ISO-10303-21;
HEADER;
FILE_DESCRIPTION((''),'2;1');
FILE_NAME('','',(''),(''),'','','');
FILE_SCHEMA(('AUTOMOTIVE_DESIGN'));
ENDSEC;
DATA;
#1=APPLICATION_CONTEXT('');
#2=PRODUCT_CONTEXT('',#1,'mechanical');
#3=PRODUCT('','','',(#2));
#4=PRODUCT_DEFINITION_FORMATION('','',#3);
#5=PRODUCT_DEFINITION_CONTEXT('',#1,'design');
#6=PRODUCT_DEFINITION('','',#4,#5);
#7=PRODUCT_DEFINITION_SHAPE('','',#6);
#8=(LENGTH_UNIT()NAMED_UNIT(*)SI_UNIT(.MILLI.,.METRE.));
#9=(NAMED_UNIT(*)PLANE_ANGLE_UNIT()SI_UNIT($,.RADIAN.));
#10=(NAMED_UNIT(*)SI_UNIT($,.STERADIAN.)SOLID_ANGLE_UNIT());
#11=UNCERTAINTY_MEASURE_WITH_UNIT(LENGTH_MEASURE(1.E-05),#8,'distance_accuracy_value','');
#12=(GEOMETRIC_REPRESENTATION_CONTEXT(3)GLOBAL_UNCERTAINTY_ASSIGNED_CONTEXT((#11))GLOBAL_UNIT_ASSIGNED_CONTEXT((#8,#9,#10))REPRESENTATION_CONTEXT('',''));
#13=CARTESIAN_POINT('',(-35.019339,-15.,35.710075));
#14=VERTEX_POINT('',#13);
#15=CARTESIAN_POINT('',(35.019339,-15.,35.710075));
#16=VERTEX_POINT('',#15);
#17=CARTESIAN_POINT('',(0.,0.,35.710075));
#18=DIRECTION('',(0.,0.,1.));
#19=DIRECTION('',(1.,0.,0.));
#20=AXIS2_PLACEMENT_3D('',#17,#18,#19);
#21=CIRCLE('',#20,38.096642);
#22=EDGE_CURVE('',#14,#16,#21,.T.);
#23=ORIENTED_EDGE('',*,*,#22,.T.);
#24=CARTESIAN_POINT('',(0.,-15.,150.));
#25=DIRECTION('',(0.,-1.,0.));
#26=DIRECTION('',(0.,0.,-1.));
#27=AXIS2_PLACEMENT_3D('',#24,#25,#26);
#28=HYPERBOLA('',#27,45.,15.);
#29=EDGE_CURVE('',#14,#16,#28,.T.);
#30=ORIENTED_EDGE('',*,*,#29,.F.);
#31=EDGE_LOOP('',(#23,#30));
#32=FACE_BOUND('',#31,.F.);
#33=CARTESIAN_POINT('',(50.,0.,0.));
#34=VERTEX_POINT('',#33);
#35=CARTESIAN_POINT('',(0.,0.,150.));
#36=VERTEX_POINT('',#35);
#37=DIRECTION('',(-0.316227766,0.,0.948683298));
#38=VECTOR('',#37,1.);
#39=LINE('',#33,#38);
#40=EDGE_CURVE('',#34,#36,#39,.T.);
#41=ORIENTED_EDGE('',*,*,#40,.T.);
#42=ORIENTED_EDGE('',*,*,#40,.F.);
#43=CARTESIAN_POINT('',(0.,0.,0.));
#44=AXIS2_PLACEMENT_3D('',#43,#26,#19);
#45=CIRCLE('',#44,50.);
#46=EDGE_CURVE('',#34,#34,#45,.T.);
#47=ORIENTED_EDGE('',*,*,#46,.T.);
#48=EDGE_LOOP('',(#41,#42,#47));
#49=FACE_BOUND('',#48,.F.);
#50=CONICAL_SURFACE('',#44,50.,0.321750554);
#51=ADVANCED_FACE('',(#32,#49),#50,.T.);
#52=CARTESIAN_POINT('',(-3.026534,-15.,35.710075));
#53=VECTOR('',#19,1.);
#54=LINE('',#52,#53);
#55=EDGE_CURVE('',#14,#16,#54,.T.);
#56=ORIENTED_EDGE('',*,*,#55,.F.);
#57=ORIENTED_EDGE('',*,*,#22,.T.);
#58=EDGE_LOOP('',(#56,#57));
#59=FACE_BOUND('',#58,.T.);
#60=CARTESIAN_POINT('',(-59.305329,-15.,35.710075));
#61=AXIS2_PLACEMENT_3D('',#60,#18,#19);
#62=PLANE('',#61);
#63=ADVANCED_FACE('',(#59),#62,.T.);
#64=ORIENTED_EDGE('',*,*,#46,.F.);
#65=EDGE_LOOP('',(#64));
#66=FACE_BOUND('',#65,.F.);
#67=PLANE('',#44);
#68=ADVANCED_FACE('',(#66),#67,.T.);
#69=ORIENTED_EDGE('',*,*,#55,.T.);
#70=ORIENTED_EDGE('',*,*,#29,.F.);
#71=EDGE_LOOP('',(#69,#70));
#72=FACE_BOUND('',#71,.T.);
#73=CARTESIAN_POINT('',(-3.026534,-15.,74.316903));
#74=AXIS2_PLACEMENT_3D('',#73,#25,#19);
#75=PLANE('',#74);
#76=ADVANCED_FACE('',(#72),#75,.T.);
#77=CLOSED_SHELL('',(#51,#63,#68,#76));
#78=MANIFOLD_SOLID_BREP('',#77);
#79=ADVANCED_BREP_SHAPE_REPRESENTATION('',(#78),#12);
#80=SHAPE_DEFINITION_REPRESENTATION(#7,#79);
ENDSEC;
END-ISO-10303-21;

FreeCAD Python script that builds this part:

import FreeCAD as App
import Part
import Sketcher

V = App.Vector


def add_polygon(sketch, points):
    """Adds a closed chain of lines whose ends are joined by coincident constraints."""
    first, n = sketch.GeometryCount, len(points)
    for a, b in zip(points, points[1:] + points[:1]):
        sketch.addGeometry(Part.LineSegment(App.Vector(*a, 0), App.Vector(*b, 0)), False)
    for i in range(n):
        sketch.addConstraint(Sketcher.Constraint("Coincident", first + i, 2, first + (i + 1) % n, 1))

doc = App.newDocument("Part")
body = doc.addObject("PartDesign::Body", "Body")

# Sketch on XZ plane
sketch1 = body.newObject("Sketcher::SketchObject", "Sketch")
sketch1.AttachmentSupport = (doc.getObject("XZ_Plane"), [""])
sketch1.MapMode = "FlatFace"
add_polygon(sketch1, [(50, 0), (0, 150), (0, 0)])  # lines 0-2
sketch1.addConstraint(Sketcher.Constraint("Vertical", 1))
sketch1.addConstraint(Sketcher.Constraint("Horizontal", 2))
sketch1.addConstraint(Sketcher.Constraint("Coincident", 1, 2, -1, 1))
sketch1.addConstraint(Sketcher.Constraint("DistanceX", 2, 1, 2, 2, 50.0))
sketch1.addConstraint(Sketcher.Constraint("DistanceY", 1, 2, 1, 1, 150.0))
revolution = body.newObject("PartDesign::Revolution", "Revolution")
revolution.Profile = sketch1
revolution.ReferenceAxis = (sketch1, ["V_Axis"])
revolution.Angle = 360

# Sketch on XZ plane
sketch2 = body.newObject("Sketcher::SketchObject", "Sketch001")
sketch2.AttachmentSupport = (doc.getObject("XZ_Plane"), [""])
sketch2.MapMode = "FlatFace"
sketch2.AttachmentOffset = App.Placement(V(0, 0, 15), App.Rotation())
add_polygon(sketch2, [(-59, 113), (-59, 36), (53, 36), (53, 113)])  # lines 0-3
sketch2.addConstraint(Sketcher.Constraint("Vertical", 0))
sketch2.addConstraint(Sketcher.Constraint("Horizontal", 1))
sketch2.addConstraint(Sketcher.Constraint("Vertical", 2))
sketch2.addConstraint(Sketcher.Constraint("Horizontal", 3))
sketch2.addConstraint(Sketcher.Constraint("DistanceX", 1, 1, 1, 2, 112.55759))
sketch2.addConstraint(Sketcher.Constraint("DistanceY", 0, 2, 0, 1, 77.213655))
sketch2.addConstraint(Sketcher.Constraint("DistanceX", 0, 2, -1, 1, 59.305329))
sketch2.addConstraint(Sketcher.Constraint("DistanceY", -1, 1, 2, 2, 112.92373))
pocket1 = body.newObject("PartDesign::Pocket", "Pocket")
pocket1.Profile = sketch2
pocket1.Length = 35.001
pocket1.Reversed = True

doc.recompute()
